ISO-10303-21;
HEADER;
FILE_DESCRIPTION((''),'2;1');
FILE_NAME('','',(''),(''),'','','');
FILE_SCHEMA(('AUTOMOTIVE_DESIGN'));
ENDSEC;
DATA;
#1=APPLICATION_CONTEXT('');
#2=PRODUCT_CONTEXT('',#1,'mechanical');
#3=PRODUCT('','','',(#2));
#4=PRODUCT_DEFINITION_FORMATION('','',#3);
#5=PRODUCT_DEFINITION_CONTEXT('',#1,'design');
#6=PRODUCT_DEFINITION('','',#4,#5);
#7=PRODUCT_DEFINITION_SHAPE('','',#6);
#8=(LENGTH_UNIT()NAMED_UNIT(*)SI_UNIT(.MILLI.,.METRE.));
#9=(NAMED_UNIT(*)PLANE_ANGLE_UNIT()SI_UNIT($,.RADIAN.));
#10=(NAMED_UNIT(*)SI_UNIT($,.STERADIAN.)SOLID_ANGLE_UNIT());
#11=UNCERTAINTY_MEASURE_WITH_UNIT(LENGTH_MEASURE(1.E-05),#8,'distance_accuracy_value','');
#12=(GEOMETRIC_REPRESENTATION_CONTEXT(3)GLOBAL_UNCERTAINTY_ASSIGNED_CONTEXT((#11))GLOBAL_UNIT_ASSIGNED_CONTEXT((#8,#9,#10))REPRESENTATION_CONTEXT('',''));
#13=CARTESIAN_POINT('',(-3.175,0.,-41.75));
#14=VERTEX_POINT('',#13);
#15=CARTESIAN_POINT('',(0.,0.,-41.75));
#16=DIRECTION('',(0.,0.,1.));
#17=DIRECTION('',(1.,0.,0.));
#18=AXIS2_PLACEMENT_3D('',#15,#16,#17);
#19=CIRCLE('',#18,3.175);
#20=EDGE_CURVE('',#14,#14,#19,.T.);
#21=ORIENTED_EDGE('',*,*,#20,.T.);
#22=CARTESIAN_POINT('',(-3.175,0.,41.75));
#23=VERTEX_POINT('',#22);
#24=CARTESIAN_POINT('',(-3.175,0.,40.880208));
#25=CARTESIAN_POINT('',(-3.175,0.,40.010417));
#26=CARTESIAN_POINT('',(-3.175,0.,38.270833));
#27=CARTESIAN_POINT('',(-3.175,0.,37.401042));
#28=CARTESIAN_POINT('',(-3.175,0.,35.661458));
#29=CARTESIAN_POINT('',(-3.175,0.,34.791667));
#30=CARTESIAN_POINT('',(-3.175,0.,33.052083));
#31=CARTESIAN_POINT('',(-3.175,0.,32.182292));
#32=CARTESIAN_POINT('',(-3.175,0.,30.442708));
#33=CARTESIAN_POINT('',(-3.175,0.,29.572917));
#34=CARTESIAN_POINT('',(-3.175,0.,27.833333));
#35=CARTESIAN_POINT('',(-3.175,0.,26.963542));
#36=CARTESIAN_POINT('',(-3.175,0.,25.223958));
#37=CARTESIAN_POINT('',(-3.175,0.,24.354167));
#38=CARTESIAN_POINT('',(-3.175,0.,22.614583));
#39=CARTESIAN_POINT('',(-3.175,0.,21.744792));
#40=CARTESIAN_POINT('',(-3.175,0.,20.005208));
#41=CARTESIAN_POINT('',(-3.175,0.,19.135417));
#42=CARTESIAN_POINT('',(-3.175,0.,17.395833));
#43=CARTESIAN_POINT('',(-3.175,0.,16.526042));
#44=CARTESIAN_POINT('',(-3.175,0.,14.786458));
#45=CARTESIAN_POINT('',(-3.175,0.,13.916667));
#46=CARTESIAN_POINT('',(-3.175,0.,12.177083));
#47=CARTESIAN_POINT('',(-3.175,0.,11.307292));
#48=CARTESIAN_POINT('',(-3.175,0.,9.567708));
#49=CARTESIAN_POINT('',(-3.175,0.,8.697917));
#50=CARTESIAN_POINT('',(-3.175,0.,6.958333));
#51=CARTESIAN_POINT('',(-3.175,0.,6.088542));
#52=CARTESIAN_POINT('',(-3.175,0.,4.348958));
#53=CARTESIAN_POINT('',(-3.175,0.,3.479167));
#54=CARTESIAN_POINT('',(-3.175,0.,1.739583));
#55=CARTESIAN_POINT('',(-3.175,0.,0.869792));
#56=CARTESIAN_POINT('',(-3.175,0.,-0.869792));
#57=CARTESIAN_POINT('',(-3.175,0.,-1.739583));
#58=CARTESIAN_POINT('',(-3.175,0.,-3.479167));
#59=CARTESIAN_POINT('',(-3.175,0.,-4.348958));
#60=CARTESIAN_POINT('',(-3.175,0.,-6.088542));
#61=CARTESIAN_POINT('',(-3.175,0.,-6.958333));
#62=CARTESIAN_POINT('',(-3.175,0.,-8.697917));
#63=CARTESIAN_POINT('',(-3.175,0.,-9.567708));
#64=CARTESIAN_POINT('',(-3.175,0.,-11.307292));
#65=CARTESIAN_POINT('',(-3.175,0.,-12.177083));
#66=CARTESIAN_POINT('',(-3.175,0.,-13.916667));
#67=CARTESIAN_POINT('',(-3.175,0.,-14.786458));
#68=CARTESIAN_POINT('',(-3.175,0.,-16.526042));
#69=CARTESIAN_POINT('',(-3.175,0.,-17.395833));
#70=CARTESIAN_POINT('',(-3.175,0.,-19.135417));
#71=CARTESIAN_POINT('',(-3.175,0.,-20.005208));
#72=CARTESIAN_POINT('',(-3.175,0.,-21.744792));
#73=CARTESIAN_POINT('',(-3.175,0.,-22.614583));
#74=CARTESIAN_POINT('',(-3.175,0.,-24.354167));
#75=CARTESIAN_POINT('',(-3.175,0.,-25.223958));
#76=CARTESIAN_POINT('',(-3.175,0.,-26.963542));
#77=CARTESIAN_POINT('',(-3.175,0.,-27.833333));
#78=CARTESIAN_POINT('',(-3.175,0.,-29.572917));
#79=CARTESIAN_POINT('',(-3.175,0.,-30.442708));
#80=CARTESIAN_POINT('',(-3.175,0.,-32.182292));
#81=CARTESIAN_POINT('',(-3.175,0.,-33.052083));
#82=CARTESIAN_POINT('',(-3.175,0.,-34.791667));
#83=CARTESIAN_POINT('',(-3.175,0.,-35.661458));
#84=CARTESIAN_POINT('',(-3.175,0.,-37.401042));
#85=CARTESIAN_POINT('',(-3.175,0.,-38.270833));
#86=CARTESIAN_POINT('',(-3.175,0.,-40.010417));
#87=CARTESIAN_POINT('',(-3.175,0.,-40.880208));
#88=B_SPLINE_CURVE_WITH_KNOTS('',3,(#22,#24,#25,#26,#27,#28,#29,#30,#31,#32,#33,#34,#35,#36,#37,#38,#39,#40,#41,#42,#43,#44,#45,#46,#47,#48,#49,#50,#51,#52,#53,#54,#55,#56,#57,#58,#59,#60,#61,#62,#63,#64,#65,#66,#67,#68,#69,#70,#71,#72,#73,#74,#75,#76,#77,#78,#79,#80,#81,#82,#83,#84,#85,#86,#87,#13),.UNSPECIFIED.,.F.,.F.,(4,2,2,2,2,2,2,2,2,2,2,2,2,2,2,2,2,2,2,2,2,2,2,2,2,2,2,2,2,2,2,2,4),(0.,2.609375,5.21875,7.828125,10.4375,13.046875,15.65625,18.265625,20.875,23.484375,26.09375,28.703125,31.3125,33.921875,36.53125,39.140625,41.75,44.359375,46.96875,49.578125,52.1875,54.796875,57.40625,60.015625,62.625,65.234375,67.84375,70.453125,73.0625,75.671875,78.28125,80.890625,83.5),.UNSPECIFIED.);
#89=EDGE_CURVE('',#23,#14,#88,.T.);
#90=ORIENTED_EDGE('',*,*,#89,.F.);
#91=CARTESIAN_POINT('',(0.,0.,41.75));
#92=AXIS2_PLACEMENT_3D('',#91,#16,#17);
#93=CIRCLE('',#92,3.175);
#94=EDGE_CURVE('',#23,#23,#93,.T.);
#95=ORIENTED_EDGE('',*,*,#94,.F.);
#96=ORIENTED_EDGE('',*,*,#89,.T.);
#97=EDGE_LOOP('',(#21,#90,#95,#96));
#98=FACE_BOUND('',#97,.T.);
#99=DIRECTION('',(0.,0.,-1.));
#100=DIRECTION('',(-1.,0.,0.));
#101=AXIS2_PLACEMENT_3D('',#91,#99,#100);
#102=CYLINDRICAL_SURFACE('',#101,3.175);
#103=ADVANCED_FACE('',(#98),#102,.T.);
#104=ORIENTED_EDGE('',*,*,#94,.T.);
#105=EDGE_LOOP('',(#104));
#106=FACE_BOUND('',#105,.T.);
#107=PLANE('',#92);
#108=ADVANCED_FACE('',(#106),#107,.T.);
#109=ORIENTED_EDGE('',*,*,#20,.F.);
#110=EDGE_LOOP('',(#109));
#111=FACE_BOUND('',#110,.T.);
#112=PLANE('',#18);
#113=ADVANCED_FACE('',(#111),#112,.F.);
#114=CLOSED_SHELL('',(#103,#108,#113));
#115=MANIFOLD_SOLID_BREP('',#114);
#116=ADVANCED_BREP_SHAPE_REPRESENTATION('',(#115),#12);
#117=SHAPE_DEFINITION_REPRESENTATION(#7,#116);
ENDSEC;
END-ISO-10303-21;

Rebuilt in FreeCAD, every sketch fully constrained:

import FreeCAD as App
import Part
import Sketcher
Q = App.Units.Quantity

doc = App.newDocument("Part")
body = doc.addObject("PartDesign::Body", "Body")

sketch1 = body.newObject("Sketcher::SketchObject", "Sketch")
sketch1.AttachmentSupport = (doc.getObject("XY_Plane"), [""])
sketch1.MapMode = "FlatFace"
sketch1.addGeometry(Part.Circle(App.Vector(0, 0, 0), App.Vector(0, 0, 1), 3.2), False)
sketch1.addConstraint(Sketcher.Constraint("Coincident", 0, 3, -1, 1))
sketch1.addConstraint(Sketcher.Constraint("Diameter", 0, Q("0.25 in")))
pad1 = body.newObject("PartDesign::Pad", "Pad")
pad1.Profile = sketch1
pad1.Type = "TwoLengths"
pad1.Length = 41.75
pad1.Length2 = 41.75

doc.recompute()
